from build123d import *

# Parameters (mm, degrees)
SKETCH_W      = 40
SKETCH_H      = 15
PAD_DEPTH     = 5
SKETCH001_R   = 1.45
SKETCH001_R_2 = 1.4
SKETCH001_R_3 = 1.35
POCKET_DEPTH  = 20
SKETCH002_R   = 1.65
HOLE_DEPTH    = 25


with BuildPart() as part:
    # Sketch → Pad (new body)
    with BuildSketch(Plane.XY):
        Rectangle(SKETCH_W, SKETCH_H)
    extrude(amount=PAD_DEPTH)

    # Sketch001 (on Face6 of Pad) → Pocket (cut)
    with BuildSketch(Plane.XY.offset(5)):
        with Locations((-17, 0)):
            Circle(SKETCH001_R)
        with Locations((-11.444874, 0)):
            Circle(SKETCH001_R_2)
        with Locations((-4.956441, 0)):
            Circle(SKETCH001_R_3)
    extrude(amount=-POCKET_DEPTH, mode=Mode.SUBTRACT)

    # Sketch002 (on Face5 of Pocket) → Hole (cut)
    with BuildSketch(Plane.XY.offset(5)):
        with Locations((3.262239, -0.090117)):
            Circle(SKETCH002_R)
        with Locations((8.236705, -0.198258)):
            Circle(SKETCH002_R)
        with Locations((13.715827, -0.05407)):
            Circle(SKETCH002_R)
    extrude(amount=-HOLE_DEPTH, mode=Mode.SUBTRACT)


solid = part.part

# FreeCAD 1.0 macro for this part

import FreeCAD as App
import Part
import Sketcher
Q = App.Units.Quantity

doc = App.newDocument("Part")
body = doc.addObject("PartDesign::Body", "Body")

sketch1 = body.newObject("Sketcher::SketchObject", "Sketch")
sketch1.AttachmentSupport = (doc.getObject("XY_Plane"), [""])
sketch1.MapMode = "FlatFace"
sketch1.addGeometry([
    Part.LineSegment(App.Vector(-20, 8, 0), App.Vector(-20, -8, 0)),
    Part.LineSegment(App.Vector(-20, -8, 0), App.Vector(20, -8, 0)),
    Part.LineSegment(App.Vector(20, -8, 0), App.Vector(20, 8, 0)),
    Part.LineSegment(App.Vector(20, 8, 0), App.Vector(-20, 8, 0)),
], False)
sketch1.addConstraint([
    Sketcher.Constraint("Coincident", 0, 2, 1, 1),
    Sketcher.Constraint("Coincident", 1, 2, 2, 1),
    Sketcher.Constraint("Coincident", 2, 2, 3, 1),
    Sketcher.Constraint("Coincident", 3, 2, 0, 1),
    Sketcher.Constraint("Vertical", 0),
    Sketcher.Constraint("Horizontal", 1),
    Sketcher.Constraint("Vertical", 2),
    Sketcher.Constraint("Horizontal", 3),
    Sketcher.Constraint("Symmetric", 0, 2, 2, 2, -1, 1),
    Sketcher.Constraint("DistanceX", 1, 1, 1, 2, Q("40 mm")),
    Sketcher.Constraint("DistanceY", 0, 2, 0, 1, Q("15 mm")),
])
pad1 = body.newObject("PartDesign::Pad", "Pad")
pad1.Profile = sketch1
pad1.Length = 5

sketch2 = body.newObject("Sketcher::SketchObject", "Sketch001")
sketch2.AttachmentSupport = (doc.getObject("XY_Plane"), [""])
sketch2.MapMode = "FlatFace"
sketch2.AttachmentOffset = App.Placement(App.Vector(0, 0, 5), App.Rotation())
sketch2.addGeometry([
    Part.Circle(App.Vector(-17, 0, 0), App.Vector(0, 0, 1), 1.4),
    Part.Circle(App.Vector(-11.4, 0, 0), App.Vector(0, 0, 1), 1.4),
    Part.Circle(App.Vector(-5, 0, 0), App.Vector(0, 0, 1), 1.4),
], False)
sketch2.addConstraint([
    Sketcher.Constraint("PointOnObject", 0, 3, -1),
    Sketcher.Constraint("PointOnObject", 1, 3, -1),
    Sketcher.Constraint("PointOnObject", 2, 3, -1),
    Sketcher.Constraint("Diameter", 0, Q("2.9 mm")),
    Sketcher.Constraint("Diameter", 1, Q("2.8 mm")),
    Sketcher.Constraint("Diameter", 2, Q("2.7 mm")),
    Sketcher.Constraint("DistanceX", 0, 3, -1, 1, Q("17 mm")),
    Sketcher.Constraint("DistanceX", 2, 3, -1, 1, Q("4.956441 mm")),
    Sketcher.Constraint("DistanceX", 1, 3, -1, 1, Q("11.444874 mm")),
])
pocket1 = body.newObject("PartDesign::Pocket", "Pocket")
pocket1.Profile = sketch2
pocket1.Length = 20

sketch3 = body.newObject("Sketcher::SketchObject", "Sketch002")
sketch3.AttachmentSupport = (doc.getObject("XY_Plane"), [""])
sketch3.MapMode = "FlatFace"
sketch3.AttachmentOffset = App.Placement(App.Vector(0, 0, 5), App.Rotation())
sketch3.addGeometry([
    Part.Circle(App.Vector(3.3, -0.1, 0), App.Vector(0, 0, 1), 1.6),
    Part.Circle(App.Vector(8.2, -0.2, 0), App.Vector(0, 0, 1), 1.6),
    Part.Circle(App.Vector(13.7, -0.1, 0), App.Vector(0, 0, 1), 1.6),
], False)
sketch3.addConstraint([
    Sketcher.Constraint("Equal", 0, 1),
    Sketcher.Constraint("Equal", 1, 2),
    Sketcher.Constraint("Diameter", 0, Q("3.3 mm")),
    Sketcher.Constraint("DistanceX", -1, 1, 0, 3, Q("3.262239 mm")),
    Sketcher.Constraint("DistanceY", 2, 3, -1, 1, Q("0.05407 mm")),
    Sketcher.Constraint("DistanceY", 1, 3, 0, 3, Q("0.108141 mm")),
    Sketcher.Constraint("DistanceY", 0, 3, -1, 1, Q("0.090117 mm")),
    Sketcher.Constraint("DistanceX", -1, 1, 1, 3, Q("8.236705 mm")),
    Sketcher.Constraint("DistanceX", -1, 1, 2, 3, Q("13.715827 mm")),
])
pocket2 = body.newObject("PartDesign::Pocket", "Pocket001")
pocket2.Profile = sketch3
pocket2.Length = 25

doc.recompute()
